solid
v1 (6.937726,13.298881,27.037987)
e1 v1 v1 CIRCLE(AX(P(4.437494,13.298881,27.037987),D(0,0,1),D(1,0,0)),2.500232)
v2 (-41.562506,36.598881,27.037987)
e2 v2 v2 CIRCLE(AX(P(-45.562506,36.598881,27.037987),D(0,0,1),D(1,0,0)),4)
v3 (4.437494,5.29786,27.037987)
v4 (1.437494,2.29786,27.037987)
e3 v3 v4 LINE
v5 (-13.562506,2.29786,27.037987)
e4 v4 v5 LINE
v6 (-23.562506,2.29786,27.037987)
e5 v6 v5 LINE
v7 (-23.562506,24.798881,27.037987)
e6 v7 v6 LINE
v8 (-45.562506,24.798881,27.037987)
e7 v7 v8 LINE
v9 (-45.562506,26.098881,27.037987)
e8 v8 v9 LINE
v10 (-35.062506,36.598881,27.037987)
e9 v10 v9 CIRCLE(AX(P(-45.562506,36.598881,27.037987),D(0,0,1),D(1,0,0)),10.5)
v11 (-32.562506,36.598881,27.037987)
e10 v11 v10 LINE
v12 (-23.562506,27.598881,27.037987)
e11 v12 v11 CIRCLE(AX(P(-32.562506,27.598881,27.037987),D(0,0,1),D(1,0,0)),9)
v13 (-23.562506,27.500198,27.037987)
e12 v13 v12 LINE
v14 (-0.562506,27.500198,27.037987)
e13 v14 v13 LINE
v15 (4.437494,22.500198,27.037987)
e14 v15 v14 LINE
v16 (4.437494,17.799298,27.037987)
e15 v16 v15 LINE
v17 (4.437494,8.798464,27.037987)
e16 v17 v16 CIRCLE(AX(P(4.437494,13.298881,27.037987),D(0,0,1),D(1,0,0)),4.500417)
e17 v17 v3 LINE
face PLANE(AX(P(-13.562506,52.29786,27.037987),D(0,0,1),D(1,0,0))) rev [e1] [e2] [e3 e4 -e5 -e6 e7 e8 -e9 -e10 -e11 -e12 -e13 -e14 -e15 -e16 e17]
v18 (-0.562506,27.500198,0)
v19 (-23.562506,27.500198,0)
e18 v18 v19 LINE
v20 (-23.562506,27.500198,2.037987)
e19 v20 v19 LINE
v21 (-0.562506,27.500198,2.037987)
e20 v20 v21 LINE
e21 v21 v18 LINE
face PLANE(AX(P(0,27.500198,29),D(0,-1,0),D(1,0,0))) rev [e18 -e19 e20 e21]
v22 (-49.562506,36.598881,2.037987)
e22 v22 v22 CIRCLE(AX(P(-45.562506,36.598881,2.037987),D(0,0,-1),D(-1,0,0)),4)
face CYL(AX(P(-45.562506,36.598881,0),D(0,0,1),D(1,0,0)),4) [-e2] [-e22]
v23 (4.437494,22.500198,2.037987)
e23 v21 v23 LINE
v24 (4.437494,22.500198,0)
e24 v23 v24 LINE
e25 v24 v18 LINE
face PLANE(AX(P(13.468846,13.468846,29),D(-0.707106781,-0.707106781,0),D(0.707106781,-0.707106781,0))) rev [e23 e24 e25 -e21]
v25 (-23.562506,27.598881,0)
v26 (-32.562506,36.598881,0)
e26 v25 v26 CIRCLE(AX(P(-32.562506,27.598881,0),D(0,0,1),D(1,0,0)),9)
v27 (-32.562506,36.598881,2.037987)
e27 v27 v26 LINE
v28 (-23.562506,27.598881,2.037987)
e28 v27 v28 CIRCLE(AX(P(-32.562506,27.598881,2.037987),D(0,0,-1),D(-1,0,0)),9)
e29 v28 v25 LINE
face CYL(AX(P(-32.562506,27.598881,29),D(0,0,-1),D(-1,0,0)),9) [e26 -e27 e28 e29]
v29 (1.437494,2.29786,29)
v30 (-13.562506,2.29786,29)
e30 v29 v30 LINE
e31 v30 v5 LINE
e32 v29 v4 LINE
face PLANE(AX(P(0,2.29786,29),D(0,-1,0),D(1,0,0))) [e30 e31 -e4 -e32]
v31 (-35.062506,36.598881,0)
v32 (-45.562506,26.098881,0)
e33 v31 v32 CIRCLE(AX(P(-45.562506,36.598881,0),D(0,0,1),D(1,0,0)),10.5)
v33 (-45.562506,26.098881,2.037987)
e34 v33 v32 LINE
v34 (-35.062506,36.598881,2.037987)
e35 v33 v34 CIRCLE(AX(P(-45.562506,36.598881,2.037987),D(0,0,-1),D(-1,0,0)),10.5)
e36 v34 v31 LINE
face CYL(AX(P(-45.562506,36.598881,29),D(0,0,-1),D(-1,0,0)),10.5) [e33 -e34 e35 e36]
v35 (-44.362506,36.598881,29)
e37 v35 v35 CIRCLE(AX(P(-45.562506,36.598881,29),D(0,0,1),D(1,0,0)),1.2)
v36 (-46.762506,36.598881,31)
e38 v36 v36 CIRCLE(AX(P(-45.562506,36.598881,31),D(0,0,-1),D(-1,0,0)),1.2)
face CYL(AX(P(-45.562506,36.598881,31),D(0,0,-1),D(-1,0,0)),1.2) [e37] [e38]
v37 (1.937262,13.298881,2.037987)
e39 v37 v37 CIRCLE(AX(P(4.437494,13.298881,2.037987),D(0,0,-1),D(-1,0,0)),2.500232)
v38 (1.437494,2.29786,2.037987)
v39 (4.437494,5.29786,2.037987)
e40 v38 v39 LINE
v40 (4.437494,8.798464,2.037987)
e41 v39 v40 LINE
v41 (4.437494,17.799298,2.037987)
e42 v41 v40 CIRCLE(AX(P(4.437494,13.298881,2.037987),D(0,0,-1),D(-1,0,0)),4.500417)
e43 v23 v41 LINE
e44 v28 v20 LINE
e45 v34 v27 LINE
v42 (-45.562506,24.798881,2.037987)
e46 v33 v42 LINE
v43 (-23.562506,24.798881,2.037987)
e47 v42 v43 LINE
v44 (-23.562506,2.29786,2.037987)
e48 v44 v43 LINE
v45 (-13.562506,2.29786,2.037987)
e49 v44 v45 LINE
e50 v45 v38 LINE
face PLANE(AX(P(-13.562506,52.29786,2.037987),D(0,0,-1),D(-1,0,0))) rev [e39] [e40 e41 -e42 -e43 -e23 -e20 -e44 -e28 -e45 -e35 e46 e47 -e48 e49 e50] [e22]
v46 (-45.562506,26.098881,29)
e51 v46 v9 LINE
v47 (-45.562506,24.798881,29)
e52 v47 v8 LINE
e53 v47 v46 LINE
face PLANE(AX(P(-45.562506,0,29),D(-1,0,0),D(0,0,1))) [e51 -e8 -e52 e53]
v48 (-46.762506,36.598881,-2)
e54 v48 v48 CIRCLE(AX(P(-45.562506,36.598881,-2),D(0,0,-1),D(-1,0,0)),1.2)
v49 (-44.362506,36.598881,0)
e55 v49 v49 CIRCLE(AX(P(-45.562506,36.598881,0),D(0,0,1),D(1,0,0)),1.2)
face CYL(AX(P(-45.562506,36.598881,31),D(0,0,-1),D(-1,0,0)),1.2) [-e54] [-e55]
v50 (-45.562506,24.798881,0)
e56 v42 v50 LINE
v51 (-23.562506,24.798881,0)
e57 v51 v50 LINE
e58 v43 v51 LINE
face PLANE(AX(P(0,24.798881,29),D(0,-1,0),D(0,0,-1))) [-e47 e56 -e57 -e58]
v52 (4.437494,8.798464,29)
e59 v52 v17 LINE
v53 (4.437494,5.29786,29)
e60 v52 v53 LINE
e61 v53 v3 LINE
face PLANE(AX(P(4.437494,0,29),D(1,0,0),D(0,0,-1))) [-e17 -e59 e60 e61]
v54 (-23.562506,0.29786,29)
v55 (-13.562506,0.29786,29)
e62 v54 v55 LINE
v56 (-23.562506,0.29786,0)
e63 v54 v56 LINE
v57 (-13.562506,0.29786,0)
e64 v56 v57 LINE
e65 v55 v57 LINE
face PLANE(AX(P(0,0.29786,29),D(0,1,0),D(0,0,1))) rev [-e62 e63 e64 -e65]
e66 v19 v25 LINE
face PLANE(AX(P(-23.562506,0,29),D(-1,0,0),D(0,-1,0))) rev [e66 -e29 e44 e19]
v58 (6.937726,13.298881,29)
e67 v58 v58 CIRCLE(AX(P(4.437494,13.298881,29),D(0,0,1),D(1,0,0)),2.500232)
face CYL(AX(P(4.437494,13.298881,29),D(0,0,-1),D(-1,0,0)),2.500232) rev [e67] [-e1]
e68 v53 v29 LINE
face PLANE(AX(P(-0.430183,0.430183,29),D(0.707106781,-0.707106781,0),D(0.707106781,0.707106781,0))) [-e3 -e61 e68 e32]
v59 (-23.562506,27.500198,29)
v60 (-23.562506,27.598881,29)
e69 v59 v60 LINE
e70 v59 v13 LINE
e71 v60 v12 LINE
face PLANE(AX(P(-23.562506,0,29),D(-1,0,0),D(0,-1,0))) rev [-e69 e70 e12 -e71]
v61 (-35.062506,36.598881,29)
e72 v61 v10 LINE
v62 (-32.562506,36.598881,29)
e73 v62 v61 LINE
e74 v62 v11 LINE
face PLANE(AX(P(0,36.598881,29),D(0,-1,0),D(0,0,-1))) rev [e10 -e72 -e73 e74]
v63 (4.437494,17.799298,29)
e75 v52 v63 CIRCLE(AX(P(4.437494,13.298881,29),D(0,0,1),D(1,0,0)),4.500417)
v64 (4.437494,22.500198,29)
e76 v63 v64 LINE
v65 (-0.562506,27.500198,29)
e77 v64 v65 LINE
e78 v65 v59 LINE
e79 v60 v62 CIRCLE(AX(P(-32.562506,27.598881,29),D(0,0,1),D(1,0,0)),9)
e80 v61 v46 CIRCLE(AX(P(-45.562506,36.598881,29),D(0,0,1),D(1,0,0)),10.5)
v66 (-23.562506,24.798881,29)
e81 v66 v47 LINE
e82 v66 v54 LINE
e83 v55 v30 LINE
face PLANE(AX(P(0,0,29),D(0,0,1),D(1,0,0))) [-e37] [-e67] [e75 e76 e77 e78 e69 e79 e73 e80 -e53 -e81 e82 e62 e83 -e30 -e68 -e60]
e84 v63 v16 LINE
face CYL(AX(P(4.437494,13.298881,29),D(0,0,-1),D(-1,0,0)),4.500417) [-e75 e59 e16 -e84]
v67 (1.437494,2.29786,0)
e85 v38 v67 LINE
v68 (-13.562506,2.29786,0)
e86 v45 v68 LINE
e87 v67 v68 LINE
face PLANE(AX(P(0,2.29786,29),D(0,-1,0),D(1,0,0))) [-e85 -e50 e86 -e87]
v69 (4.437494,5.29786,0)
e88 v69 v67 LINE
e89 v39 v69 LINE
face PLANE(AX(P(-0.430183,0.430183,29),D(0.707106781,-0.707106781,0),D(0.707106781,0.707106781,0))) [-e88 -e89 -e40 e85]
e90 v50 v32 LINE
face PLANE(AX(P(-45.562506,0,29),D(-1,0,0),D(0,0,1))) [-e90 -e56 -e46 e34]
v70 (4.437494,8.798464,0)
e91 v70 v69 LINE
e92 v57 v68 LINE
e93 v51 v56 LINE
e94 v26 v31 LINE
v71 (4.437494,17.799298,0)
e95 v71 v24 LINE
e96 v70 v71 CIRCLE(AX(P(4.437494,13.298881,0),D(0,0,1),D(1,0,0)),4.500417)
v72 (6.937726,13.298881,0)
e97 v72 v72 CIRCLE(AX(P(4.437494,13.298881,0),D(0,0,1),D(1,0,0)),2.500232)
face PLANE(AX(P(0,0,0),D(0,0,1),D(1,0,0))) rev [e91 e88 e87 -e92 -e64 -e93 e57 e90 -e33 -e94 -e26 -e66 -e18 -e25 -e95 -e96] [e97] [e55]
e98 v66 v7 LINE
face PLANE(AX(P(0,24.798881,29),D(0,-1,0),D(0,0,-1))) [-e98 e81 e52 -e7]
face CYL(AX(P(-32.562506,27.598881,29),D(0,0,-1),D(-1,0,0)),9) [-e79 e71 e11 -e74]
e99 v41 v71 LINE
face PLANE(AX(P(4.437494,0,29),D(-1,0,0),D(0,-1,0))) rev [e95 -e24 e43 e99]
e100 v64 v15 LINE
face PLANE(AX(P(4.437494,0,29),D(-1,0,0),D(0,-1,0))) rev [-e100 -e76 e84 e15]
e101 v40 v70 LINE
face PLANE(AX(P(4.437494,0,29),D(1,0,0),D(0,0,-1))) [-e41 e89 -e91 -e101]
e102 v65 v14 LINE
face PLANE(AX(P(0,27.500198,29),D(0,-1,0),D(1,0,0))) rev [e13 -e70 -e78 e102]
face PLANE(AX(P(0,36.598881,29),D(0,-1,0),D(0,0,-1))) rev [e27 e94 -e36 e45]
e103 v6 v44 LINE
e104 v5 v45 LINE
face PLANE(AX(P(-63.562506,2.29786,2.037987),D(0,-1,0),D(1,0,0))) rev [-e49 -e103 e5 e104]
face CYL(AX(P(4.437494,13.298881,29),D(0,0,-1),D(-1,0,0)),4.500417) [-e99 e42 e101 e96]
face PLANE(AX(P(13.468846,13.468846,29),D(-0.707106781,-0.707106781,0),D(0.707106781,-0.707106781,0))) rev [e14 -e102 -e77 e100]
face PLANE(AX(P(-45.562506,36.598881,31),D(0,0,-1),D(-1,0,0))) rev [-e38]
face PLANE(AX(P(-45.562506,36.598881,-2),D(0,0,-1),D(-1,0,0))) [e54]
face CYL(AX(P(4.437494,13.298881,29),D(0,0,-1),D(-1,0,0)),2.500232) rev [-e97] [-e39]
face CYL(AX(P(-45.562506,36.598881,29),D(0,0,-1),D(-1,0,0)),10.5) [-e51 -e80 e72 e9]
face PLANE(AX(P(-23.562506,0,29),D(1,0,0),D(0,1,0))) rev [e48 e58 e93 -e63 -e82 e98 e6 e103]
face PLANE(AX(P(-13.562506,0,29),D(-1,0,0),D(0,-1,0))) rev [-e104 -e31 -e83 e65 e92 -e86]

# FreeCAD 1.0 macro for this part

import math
import FreeCAD as App
import Part
import Sketcher

V = App.Vector
Q = App.Units.Quantity

doc = App.newDocument("Part")
body = doc.addObject("PartDesign::Body", "Body")

# Sketch on XY plane
sketch1 = doc.addObject("Sketcher::SketchObject", "Sketch")
body.addObject(sketch1)
sketch1.AttachmentSupport = (doc.XY_Plane, [""])
sketch1.MapMode = "FlatFace"
sketch1.addGeometry([
    Part.LineSegment(V(-23.562506, 27.500198, 0), V(-23.562506, 27.598881, 0)),  # 0
    Part.ArcOfCircle(Part.Circle(V(-32.562506, 27.598881, 0), V(0, 0, 1), 9), math.radians(0), math.radians(90)),  # 1
    Part.LineSegment(V(-32.562506, 36.598881, 0), V(-35.062506, 36.598881, 0)),  # 2
    Part.ArcOfCircle(Part.Circle(V(-45.562506, 36.598881, 0), V(0, 0, 1), 10.5), math.radians(0), math.radians(270)),  # 3
    Part.LineSegment(V(-45.562506, 26.098881, 0), V(-45.562506, 24.798881, 0)),  # 4
    Part.LineSegment(V(-45.562506, 24.798881, 0), V(-23.562506, 24.798881, 0)),  # 5
    Part.LineSegment(V(-23.562506, 24.798881, 0), V(-23.562506, 0.29786, 0)),  # 6
    Part.LineSegment(V(-23.562506, 0.29786, 0), V(-13.562506, 0.29786, 0)),  # 7
    Part.LineSegment(V(-13.562506, 0.29786, 0), V(-13.562506, 2.29786, 0)),  # 8
    Part.LineSegment(V(-13.562506, 2.29786, 0), V(1.437494, 2.29786, 0)),  # 9
    Part.LineSegment(V(1.437494, 2.29786, 0), V(4.437494, 5.29786, 0)),  # 10
    Part.LineSegment(V(4.437494, 5.29786, 0), V(4.437494, 8.798464, 0)),  # 11
    Part.ArcOfCircle(Part.Circle(V(4.437494, 13.298881, 0), V(0, 0, 1), 4.500417), math.radians(-90), math.radians(90)),  # 12
    Part.LineSegment(V(4.437494, 17.799298, 0), V(4.437494, 22.500198, 0)),  # 13
    Part.LineSegment(V(4.437494, 22.500198, 0), V(-0.562506, 27.500198, 0)),  # 14
    Part.LineSegment(V(-0.562506, 27.500198, 0), V(-23.562506, 27.500198, 0)),  # 15
    Part.Circle(V(4.437494, 13.298881, 0), V(0, 0, 1), 2.500232),  # 16
    Part.Circle(V(-45.562506, 36.598881, 0), V(0, 0, 1), 4),  # 17
], False)
sketch1.addConstraint([
    Sketcher.Constraint("Tangent", 0, 2, 1, 1),
    Sketcher.Constraint("Tangent", 1, 2, 2, 1),
    Sketcher.Constraint("Coincident", 2, 2, 3, 1),
    Sketcher.Constraint("Coincident", 3, 2, 4, 1),
    Sketcher.Constraint("Coincident", 4, 2, 5, 1),
    Sketcher.Constraint("Coincident", 5, 2, 6, 1),
    Sketcher.Constraint("Coincident", 6, 2, 7, 1),
    Sketcher.Constraint("Coincident", 7, 2, 8, 1),
    Sketcher.Constraint("Coincident", 8, 2, 9, 1),
    Sketcher.Constraint("Coincident", 9, 2, 10, 1),
    Sketcher.Constraint("Coincident", 10, 2, 11, 1),
    Sketcher.Constraint("Coincident", 11, 2, 12, 1),
    Sketcher.Constraint("Coincident", 12, 2, 13, 1),
    Sketcher.Constraint("Coincident", 13, 2, 14, 1),
    Sketcher.Constraint("Coincident", 14, 2, 15, 1),
    Sketcher.Constraint("Coincident", 15, 2, 0, 1),
    Sketcher.Constraint("Vertical", 0),
    Sketcher.Constraint("Horizontal", 2),
    Sketcher.Constraint("Vertical", 4),
    Sketcher.Constraint("Horizontal", 5),
    Sketcher.Constraint("Vertical", 6),
    Sketcher.Constraint("Horizontal", 7),
    Sketcher.Constraint("Vertical", 8),
    Sketcher.Constraint("Horizontal", 9),
    Sketcher.Constraint("Vertical", 11),
    Sketcher.Constraint("Vertical", 13),
    Sketcher.Constraint("Horizontal", 15),
    Sketcher.Constraint("Coincident", 16, 3, 12, 3),
    Sketcher.Constraint("Coincident", 17, 3, 3, 3),
    Sketcher.Constraint("Perpendicular", 10, 14),
    Sketcher.Constraint("Horizontal", 17, 3, 1, 2),
    Sketcher.Constraint("Vertical", 17, 3, 3, 2),
    Sketcher.Constraint("Vertical", 0, 2, 5, 2),
    Sketcher.Constraint("Vertical", 16, 3, 10, 2),
    Sketcher.Constraint("Vertical", 11, 2, 12, 2),
    Sketcher.Constraint("Diameter", 17, Q("8 mm")),
    Sketcher.Constraint("Radius", 1, Q("9 mm")),
    Sketcher.Constraint("Radius", 3, Q("10.5 mm")),
    Sketcher.Constraint("DistanceX", 5, 1, 5, 2, Q("22 mm")),
    Sketcher.Constraint("DistanceX", 7, 1, 7, 2, Q("10 mm")),
    Sketcher.Constraint("DistanceX", 9, 1, 9, 2, Q("15 mm")),
    Sketcher.Constraint("DistanceX", 15, 2, 15, 1, Q("23 mm")),
    Sketcher.Constraint("DistanceY", 8, 1, 8, 2, Q("2 mm")),
    Sketcher.Constraint("Angle", 10, Q("45 deg")),
    Sketcher.Constraint("DistanceY", 4, 2, 4, 1, Q("1.3 mm")),
    Sketcher.Constraint("DistanceX", 1, 3, 12, 3, Q("37 mm")),
    Sketcher.Constraint("DistanceY", 12, 3, 1, 3, Q("14.3 mm")),
    Sketcher.Constraint("Diameter", 16, Q("5.000464 mm")),
    Sketcher.Constraint("DistanceY", 13, 1, 13, 2, Q("4.700901 mm")),
    Sketcher.Constraint("Radius", 12, Q("4.500417 mm")),
    Sketcher.Constraint("DistanceY", 6, 2, 6, 1, Q("24.501021 mm")),
    Sketcher.Constraint("DistanceY", -1, 1, 13, 2, Q("22.500198 mm")),
    Sketcher.Constraint("DistanceX", 1, 3, -1, 1, Q("32.562506 mm")),
])
pad1 = doc.addObject("PartDesign::Pad", "Pad")
body.addObject(pad1)
pad1.Profile = sketch1
pad1.Length = 29

# Sketch on XZ plane
sketch2 = doc.addObject("Sketcher::SketchObject", "Sketch001")
body.addObject(sketch2)
sketch2.AttachmentSupport = (doc.XZ_Plane, [""])
sketch2.MapMode = "FlatFace"
sketch2.AttachmentOffset = App.Placement(V(0, 0, -2.29786), App.Rotation())
sketch2.addGeometry([
    Part.LineSegment(V(-13.562506, 27.037987, 0), V(-13.562506, 2.037987, 0)),
    Part.LineSegment(V(-13.562506, 2.037987, 0), V(16.250847, 2.037987, 0)),
    Part.LineSegment(V(16.250847, 2.037987, 0), V(16.250847, 27.037987, 0)),
    Part.LineSegment(V(16.250847, 27.037987, 0), V(-13.562506, 27.037987, 0)),
], False)
sketch2.addConstraint([
    Sketcher.Constraint("Coincident", 0, 2, 1, 1),
    Sketcher.Constraint("Coincident", 1, 2, 2, 1),
    Sketcher.Constraint("Coincident", 2, 2, 3, 1),
    Sketcher.Constraint("Coincident", 3, 2, 0, 1),
    Sketcher.Constraint("Vertical", 0),
    Sketcher.Constraint("Horizontal", 1),
    Sketcher.Constraint("Vertical", 2),
    Sketcher.Constraint("Horizontal", 3),
    Sketcher.Constraint("DistanceY", 0, 2, 0, 1, Q("25 mm")),
    Sketcher.Constraint("DistanceX", 1, 1, 1, 2, Q("29.813353 mm")),
    Sketcher.Constraint("DistanceX", 0, 2, -1, 1, Q("13.562506 mm")),
    Sketcher.Constraint("DistanceY", -1, 1, 0, 2, Q("2.037987 mm")),
])
pocket1 = doc.addObject("PartDesign::Pocket", "Pocket")
body.addObject(pocket1)
pocket1.Profile = sketch2
pocket1.Length = 50

# Sketch on YZ plane
sketch3 = doc.addObject("Sketcher::SketchObject", "Sketch002")
body.addObject(sketch3)
sketch3.AttachmentSupport = (doc.YZ_Plane, [""])
sketch3.MapMode = "FlatFace"
sketch3.AttachmentOffset = App.Placement(V(0, 0, -13.562506), App.Rotation())
sketch3.addGeometry([
    Part.LineSegment(V(56.353517, 27.037987, 0), V(2.29786, 27.037987, 0)),
    Part.LineSegment(V(2.29786, 27.037987, 0), V(2.29786, 2.037987, 0)),
    Part.LineSegment(V(2.29786, 2.037987, 0), V(56.353517, 2.037987, 0)),
    Part.LineSegment(V(56.353517, 2.037987, 0), V(56.353517, 27.037987, 0)),
], False)
sketch3.addConstraint([
    Sketcher.Constraint("Coincident", 0, 2, 1, 1),
    Sketcher.Constraint("Coincident", 1, 2, 2, 1),
    Sketcher.Constraint("Coincident", 2, 2, 3, 1),
    Sketcher.Constraint("Coincident", 3, 2, 0, 1),
    Sketcher.Constraint("Horizontal", 0),
    Sketcher.Constraint("Vertical", 1),
    Sketcher.Constraint("Horizontal", 2),
    Sketcher.Constraint("Vertical", 3),
    Sketcher.Constraint("DistanceY", 1, 2, 1, 1, Q("25 mm")),
    Sketcher.Constraint("DistanceX", 0, 2, 0, 1, Q("54.055657 mm")),
    Sketcher.Constraint("DistanceX", -1, 1, 0, 2, Q("2.29786 mm")),
    Sketcher.Constraint("DistanceY", -1, 1, 0, 2, Q("27.037987 mm")),
])
pocket2 = doc.addObject("PartDesign::Pocket", "Pocket001")
body.addObject(pocket2)
pocket2.Profile = sketch3
pocket2.Length = 50

# Sketch on XY plane
sketch4 = doc.addObject("Sketcher::SketchObject", "Sketch003")
body.addObject(sketch4)
sketch4.AttachmentSupport = (doc.XY_Plane, [""])
sketch4.MapMode = "FlatFace"
sketch4.AttachmentOffset = App.Placement(V(0, 0, 29), App.Rotation())
sketch4.addGeometry([
    Part.Circle(V(-45.562506, 36.598881, 0), V(0, 0, 1), 4),
    Part.Circle(V(-45.562506, 36.598881, 0), V(0, 0, 1), 1.2),
], False)
sketch4.addConstraint([
    Sketcher.Constraint("Coincident", 1, 3, 0, 3),
    Sketcher.Constraint("Diameter", 0, Q("8 mm")),
    Sketcher.Constraint("Diameter", 1, Q("2.4 mm")),
    Sketcher.Constraint("DistanceY", -1, 1, 0, 3, Q("36.598881 mm")),
    Sketcher.Constraint("DistanceX", 0, 3, -1, 1, Q("45.562506 mm")),
])
pad2 = doc.addObject("PartDesign::Pad", "Pad001")
body.addObject(pad2)
pad2.Profile = sketch4
pad2.Length = 29
pad2.Reversed = True

# Sketch on XY plane
sketch5 = doc.addObject("Sketcher::SketchObject", "Sketch004")
body.addObject(sketch5)
sketch5.AttachmentSupport = (doc.XY_Plane, [""])
sketch5.MapMode = "FlatFace"
sketch5.addGeometry(Part.Circle(V(-45.562506, 36.598881, 0), V(0, 0, 1), 1.2), False)
sketch5.addConstraint([
    Sketcher.Constraint("Diameter", 0, Q("2.4 mm")),
    Sketcher.Constraint("DistanceY", -1, 1, 0, 3, Q("36.598881 mm")),
    Sketcher.Constraint("DistanceX", 0, 3, -1, 1, Q("45.562506 mm")),
])
pad3 = doc.addObject("PartDesign::Pad", "Pad002")
body.addObject(pad3)
pad3.Profile = sketch5
pad3.Type = "TwoLengths"
pad3.Length = 2
pad3.Length2 = 31
pad3.Reversed = True

doc.recompute()
